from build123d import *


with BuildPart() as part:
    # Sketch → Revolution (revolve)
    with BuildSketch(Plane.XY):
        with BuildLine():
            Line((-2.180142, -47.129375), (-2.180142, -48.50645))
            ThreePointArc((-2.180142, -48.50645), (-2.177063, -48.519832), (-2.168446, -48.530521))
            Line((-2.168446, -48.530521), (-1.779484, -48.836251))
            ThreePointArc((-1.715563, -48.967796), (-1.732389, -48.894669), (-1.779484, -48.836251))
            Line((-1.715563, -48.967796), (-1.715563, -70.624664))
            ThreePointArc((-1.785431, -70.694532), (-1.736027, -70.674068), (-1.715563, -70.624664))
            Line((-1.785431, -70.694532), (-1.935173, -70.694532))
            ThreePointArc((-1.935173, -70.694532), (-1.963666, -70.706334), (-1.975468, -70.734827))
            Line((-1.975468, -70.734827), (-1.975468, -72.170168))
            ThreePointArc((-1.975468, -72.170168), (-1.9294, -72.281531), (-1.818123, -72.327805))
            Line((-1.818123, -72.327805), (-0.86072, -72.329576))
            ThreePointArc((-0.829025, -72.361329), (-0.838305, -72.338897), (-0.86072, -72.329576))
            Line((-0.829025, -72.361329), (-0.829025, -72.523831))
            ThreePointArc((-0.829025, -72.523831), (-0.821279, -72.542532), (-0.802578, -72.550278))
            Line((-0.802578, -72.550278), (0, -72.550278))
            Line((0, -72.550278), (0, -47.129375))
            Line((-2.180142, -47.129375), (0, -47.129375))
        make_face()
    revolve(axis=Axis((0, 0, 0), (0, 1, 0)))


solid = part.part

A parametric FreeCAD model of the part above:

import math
import FreeCAD as App
import Part
import Sketcher

V = App.Vector
Q = App.Units.Quantity

doc = App.newDocument("Part")
body = doc.addObject("PartDesign::Body", "Body")

sketch1 = doc.addObject("Sketcher::SketchObject", "Sketch")
body.addObject(sketch1)
sketch1.AttachmentSupport = (doc.XY_Plane, [""])
sketch1.MapMode = "FlatFace"
sketch1.addGeometry([
    Part.LineSegment(V(-2.180142, -47.129375, 0), V(-2.180142, -48.50645, 0)),
    Part.ArcOfCircle(Part.Circle(V(-2.149526, -48.506451, 0), V(0, 0, 1), 0.030616), math.radians(179.998099), math.radians(231.831753)),
    Part.LineSegment(V(-2.168446, -48.530521, 0), V(-1.779484, -48.836251, 0)),
    Part.ArcOfCircle(Part.Circle(V(-1.882874, -48.967794, 0), V(0, 0, 1), 0.167311), math.radians(-0.000723), math.radians(51.833271)),
    Part.LineSegment(V(-1.715563, -48.967796, 0), V(-1.715563, -70.624664, 0)),
    Part.ArcOfCircle(Part.Circle(V(-1.785431, -70.624664, 0), V(0, 0, 1), 0.069868), math.radians(-89.999618), math.radians(-0.000382)),
    Part.LineSegment(V(-1.785431, -70.694532, 0), V(-1.935173, -70.694532, 0)),
    Part.ArcOfCircle(Part.Circle(V(-1.935173, -70.734827, 0), V(0, 0, 1), 0.040295), math.radians(89.999357), math.radians(180.000643)),
    Part.LineSegment(V(-1.975468, -70.734827, 0), V(-1.975468, -72.170168, 0)),
    Part.ArcOfCircle(Part.Circle(V(-1.81783, -72.170167, 0), V(0, 0, 1), 0.157638), math.radians(-179.999751), math.radians(-90.106479)),
    Part.LineSegment(V(-1.818123, -72.327805, 0), V(-0.86072, -72.329576, 0)),
    Part.ArcOfCircle(Part.Circle(V(-0.860779, -72.36133, 0), V(0, 0, 1), 0.031754), math.radians(0.001624), math.radians(89.893623)),
    Part.LineSegment(V(-0.829025, -72.361329, 0), V(-0.829025, -72.523831, 0)),
    Part.ArcOfCircle(Part.Circle(V(-0.802579, -72.523832, 0), V(0, 0, 1), 0.026446), math.radians(179.998912), math.radians(270.001088)),
    Part.LineSegment(V(-0.802578, -72.550278, 0), V(0, -72.550278, 0)),
    Part.LineSegment(V(0, -72.550278, 0), V(0, -47.129375, 0)),
    Part.LineSegment(V(0, -47.129375, 0), V(-2.180142, -47.129375, 0)),
], False)
sketch1.addConstraint([
    Sketcher.Constraint("Coincident", 0, 2, 1, 1),
    Sketcher.Constraint("Coincident", 1, 2, 2, 1),
    Sketcher.Constraint("Coincident", 2, 2, 3, 2),
    Sketcher.Constraint("Coincident", 3, 1, 4, 1),
    Sketcher.Constraint("Coincident", 4, 2, 5, 2),
    Sketcher.Constraint("Coincident", 5, 1, 6, 1),
    Sketcher.Constraint("Coincident", 6, 2, 7, 1),
    Sketcher.Constraint("Coincident", 7, 2, 8, 1),
    Sketcher.Constraint("Coincident", 8, 2, 9, 1),
    Sketcher.Constraint("Coincident", 9, 2, 10, 1),
    Sketcher.Constraint("Coincident", 10, 2, 11, 2),
    Sketcher.Constraint("Coincident", 11, 1, 12, 1),
    Sketcher.Constraint("Coincident", 12, 2, 13, 1),
    Sketcher.Constraint("Coincident", 13, 2, 14, 1),
    Sketcher.Constraint("Coincident", 14, 2, 15, 1),
    Sketcher.Constraint("Coincident", 15, 2, 16, 1),
    Sketcher.Constraint("Coincident", 16, 2, 0, 1),
    Sketcher.Constraint("Vertical", 0),
    Sketcher.Constraint("Vertical", 4),
    Sketcher.Constraint("Horizontal", 6),
    Sketcher.Constraint("Vertical", 8),
    Sketcher.Constraint("Vertical", 12),
    Sketcher.Constraint("Horizontal", 14),
    Sketcher.Constraint("Vertical", 15),
    Sketcher.Constraint("Horizontal", 16),
    Sketcher.Constraint("PointOnObject", 14, 2, -2),
    Sketcher.Constraint("Horizontal", 1, 3, 0, 2),
    Sketcher.Constraint("Horizontal", 5, 3, 4, 2),
    Sketcher.Constraint("Horizontal", 9, 3, 8, 2),
    Sketcher.Constraint("Horizontal", 13, 3, 12, 2),
    Sketcher.Constraint("Vertical", 7, 3, 6, 2),
    Sketcher.Constraint("Radius", 3, Q("0.167311 mm")),
    Sketcher.Constraint("Radius", 5, Q("0.069868 mm")),
    Sketcher.Constraint("Radius", 1, Q("0.030616 mm")),
    Sketcher.Constraint("Radius", 7, Q("0.040295 mm")),
    Sketcher.Constraint("Radius", 9, Q("0.157638 mm")),
    Sketcher.Constraint("Radius", 11, Q("0.031754 mm")),
    Sketcher.Constraint("Radius", 13, Q("0.026446 mm")),
    Sketcher.Constraint("DistanceX", 14, 1, 14, 2, Q("0.802578 mm")),
    Sketcher.Constraint("DistanceX", 16, 2, 16, 1, Q("2.180142 mm")),
    Sketcher.Constraint("DistanceY", 8, 2, 8, 1, Q("1.435341 mm")),
    Sketcher.Constraint("DistanceX", 7, 3, 3, 3, Q("0.052299 mm")),
    Sketcher.Constraint("DistanceY", 13, 3, 11, 3, Q("0.162502 mm")),
    Sketcher.Constraint("DistanceY", 2, 2, 1, 3, Q("0.3298 mm")),
    Sketcher.Constraint("DistanceX", 9, 3, 5, 1, Q("0.032399 mm")),
    Sketcher.Constraint("DistanceX", 11, 3, 13, 2, Q("0.058201 mm")),
    Sketcher.Constraint("DistanceY", 0, 2, 0, 1, Q("1.377075 mm")),
    Sketcher.Constraint("DistanceY", 4, 2, 4, 1, Q("21.656868 mm")),
    Sketcher.Constraint("DistanceY", 12, 2, 12, 1, Q("0.162502 mm")),
    Sketcher.Constraint("DistanceY", 15, 1, 15, 2, Q("25.420903 mm")),
    Sketcher.Constraint("DistanceY", 1, 3, -1, 1, Q("48.506451 mm")),
    Sketcher.Constraint("DistanceX", 5, 3, -1, 1, Q("1.785431 mm")),
    Sketcher.Constraint("DistanceY", 1, 2, -1, 1, Q("48.530521 mm")),
    Sketcher.Constraint("DistanceY", 5, 1, -1, 1, Q("70.694532 mm")),
    Sketcher.Constraint("DistanceY", 8, 2, -1, 1, Q("72.170168 mm")),
    Sketcher.Constraint("DistanceX", 10, 2, -1, 1, Q("0.86072 mm")),
    Sketcher.Constraint("DistanceY", 5, 3, 3, 3, Q("21.65687 mm")),
    Sketcher.Constraint("DistanceX", 7, 3, 9, 2, Q("0.11705 mm")),
])
revolution = doc.addObject("PartDesign::Revolution", "Revolution")
body.addObject(revolution)
revolution.Profile = sketch1
revolution.ReferenceAxis = (sketch1, ["V_Axis"])
revolution.Angle = 360

doc.recompute()
